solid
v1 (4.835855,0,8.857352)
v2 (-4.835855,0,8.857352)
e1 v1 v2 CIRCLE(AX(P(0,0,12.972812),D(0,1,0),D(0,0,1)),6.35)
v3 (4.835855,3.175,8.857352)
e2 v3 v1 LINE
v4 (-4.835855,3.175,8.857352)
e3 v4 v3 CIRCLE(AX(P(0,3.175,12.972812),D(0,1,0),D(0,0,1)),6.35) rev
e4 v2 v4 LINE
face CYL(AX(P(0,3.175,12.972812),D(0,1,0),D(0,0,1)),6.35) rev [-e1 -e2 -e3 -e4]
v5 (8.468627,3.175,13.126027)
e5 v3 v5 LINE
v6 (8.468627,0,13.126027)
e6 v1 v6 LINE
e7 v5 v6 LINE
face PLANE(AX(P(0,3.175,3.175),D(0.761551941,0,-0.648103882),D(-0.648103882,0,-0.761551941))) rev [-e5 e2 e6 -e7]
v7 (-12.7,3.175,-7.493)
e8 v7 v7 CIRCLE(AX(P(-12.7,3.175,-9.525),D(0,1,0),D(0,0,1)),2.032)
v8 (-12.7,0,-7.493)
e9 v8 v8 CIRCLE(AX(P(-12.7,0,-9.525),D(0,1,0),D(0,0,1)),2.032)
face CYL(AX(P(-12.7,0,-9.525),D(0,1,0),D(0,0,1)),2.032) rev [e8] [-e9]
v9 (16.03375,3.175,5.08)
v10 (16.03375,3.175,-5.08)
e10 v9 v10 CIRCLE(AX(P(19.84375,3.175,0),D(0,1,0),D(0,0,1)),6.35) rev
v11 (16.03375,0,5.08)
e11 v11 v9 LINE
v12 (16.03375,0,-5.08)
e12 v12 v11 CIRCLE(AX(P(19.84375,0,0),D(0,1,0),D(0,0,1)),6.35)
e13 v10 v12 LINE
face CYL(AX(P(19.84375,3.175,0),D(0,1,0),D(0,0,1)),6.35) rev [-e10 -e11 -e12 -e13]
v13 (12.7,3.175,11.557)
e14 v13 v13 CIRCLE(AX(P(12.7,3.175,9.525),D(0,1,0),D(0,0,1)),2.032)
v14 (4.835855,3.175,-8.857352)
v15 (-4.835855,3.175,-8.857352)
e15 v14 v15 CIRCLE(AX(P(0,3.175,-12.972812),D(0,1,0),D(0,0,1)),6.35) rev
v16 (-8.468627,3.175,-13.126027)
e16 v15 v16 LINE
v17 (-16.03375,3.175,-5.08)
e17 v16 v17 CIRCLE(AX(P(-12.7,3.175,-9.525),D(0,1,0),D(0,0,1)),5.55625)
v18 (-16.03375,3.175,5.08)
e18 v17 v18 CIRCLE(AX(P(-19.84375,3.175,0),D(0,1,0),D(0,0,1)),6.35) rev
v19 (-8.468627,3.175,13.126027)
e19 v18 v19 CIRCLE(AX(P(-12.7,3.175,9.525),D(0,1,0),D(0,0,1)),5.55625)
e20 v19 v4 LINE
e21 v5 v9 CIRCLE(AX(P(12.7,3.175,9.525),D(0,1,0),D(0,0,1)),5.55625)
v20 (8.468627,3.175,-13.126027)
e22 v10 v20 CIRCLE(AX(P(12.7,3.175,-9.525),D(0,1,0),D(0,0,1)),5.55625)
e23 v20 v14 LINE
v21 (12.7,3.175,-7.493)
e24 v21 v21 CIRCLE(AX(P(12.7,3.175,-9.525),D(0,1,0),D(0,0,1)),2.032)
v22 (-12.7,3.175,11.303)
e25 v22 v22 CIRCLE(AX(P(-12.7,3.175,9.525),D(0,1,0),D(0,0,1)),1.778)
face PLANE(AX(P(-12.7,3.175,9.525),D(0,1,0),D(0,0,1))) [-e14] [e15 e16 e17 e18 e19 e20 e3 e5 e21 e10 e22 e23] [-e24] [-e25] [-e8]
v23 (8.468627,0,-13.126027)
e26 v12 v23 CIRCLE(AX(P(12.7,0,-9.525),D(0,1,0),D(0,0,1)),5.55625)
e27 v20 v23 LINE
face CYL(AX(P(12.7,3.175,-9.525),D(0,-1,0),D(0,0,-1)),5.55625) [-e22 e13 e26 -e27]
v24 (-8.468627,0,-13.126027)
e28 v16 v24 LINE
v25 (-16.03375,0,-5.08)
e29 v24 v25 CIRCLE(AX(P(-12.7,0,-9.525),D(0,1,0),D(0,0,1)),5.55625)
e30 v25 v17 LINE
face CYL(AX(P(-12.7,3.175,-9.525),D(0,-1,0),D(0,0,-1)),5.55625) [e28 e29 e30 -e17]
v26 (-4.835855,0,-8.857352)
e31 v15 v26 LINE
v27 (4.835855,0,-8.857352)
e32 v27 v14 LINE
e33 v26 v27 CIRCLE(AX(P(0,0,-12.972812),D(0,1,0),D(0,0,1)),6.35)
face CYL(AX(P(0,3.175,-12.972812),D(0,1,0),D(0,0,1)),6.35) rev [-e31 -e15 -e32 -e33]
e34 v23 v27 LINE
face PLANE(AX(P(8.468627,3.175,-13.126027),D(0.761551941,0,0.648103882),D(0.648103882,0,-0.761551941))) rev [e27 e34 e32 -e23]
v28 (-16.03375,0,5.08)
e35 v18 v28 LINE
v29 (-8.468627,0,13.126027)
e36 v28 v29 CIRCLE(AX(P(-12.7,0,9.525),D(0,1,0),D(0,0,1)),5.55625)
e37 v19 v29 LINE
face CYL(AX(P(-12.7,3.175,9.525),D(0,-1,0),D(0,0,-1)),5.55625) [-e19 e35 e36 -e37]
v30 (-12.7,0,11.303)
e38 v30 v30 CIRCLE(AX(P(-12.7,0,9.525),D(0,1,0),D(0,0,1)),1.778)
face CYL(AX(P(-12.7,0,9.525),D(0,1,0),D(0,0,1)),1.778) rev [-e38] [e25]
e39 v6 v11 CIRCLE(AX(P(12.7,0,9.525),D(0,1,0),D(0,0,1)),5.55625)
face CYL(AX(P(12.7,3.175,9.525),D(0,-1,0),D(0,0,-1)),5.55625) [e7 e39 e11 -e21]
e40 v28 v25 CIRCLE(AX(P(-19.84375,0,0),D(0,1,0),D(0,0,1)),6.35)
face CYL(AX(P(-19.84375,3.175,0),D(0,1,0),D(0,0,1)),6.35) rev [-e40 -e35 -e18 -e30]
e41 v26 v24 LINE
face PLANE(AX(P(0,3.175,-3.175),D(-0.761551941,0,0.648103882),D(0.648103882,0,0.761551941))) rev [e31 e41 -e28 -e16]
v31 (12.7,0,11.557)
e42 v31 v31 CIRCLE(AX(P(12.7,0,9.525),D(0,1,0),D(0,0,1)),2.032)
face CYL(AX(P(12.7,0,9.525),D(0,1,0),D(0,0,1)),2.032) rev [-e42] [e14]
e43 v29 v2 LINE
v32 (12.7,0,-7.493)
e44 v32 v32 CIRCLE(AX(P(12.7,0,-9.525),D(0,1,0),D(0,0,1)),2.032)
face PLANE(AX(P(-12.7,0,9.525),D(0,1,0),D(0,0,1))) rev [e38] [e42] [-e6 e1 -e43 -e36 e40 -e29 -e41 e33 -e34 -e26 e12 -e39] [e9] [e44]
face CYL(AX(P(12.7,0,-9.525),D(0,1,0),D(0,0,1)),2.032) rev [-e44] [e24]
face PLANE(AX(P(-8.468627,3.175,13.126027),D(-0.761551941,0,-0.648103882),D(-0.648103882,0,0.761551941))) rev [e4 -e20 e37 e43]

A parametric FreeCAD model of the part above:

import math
import FreeCAD as App
import Part
import Sketcher

V = App.Vector
Q = App.Units.Quantity


def edges_at(feature, points):
    """Names of the edges that pass closest to the given points."""
    edges = feature.Shape.Edges
    near = lambda p: min(range(len(edges)), key=lambda i: edges[i].distToShape(Part.Vertex(*p))[0])
    return sorted({f"Edge{near(p) + 1}" for p in points})

doc = App.newDocument("Part")
params = doc.addObject("Spreadsheet::Sheet", "Params")
for row, (alias, value) in enumerate([
    ("sketch1_radius", "0.21875 in"),
    ("pad1_length", "0.125 in"),
    ("fillet_radius", "0.25 in"),
    ("sketch2_diameter", "0.16 in"),
    ("sketch2_diameter2", "0.14 in"),
], start=1):
    params.set(f"A{row}", alias)
    params.set(f"B{row}", "=" + value)
    params.setAlias(f"B{row}", alias)

body = doc.addObject("PartDesign::Body", "Body")

sketch1 = doc.addObject("Sketcher::SketchObject", "Sketch")
body.addObject(sketch1)
sketch1.AttachmentSupport = (doc.XZ_Plane, [""])
sketch1.MapMode = "FlatFace"
sketch1.addGeometry([
    Part.LineSegment(V(-8, 13, 0), V(0, 3, 0)),
    Part.LineSegment(V(0, 3, 0), V(8, 13, 0)),
    Part.ArcOfCircle(Part.Circle(V(13, 10, 0), V(0, 0, 1), 6), math.radians(-69), math.radians(140)),
    Part.LineSegment(V(15, 4, 0), V(3, 0, 0)),
    Part.LineSegment(V(3, 0, 0), V(15, -4, 0)),
    Part.ArcOfCircle(Part.Circle(V(13, -10, 0), V(0, 0, 1), 6), math.radians(-140), math.radians(69)),
    Part.LineSegment(V(8, -13, 0), V(0, -3, 0)),
    Part.LineSegment(V(0, -3, 0), V(-8, -13, 0)),
    Part.ArcOfCircle(Part.Circle(V(-13, -10, 0), V(0, 0, 1), 6), math.radians(111), math.radians(320)),
    Part.LineSegment(V(-15, -4, 0), V(-3, 0, 0)),
    Part.LineSegment(V(-3, 0, 0), V(-15, 4, 0)),
    Part.ArcOfCircle(Part.Circle(V(-13, 10, 0), V(0, 0, 1), 6), math.radians(40), math.radians(249)),
], False)
sketch1.addConstraint([
    Sketcher.Constraint("Coincident", 0, 2, 1, 1),
    Sketcher.Constraint("Tangent", 1, 2, 2, 2),
    Sketcher.Constraint("Tangent", 2, 1, 3, 1),
    Sketcher.Constraint("Coincident", 3, 2, 4, 1),
    Sketcher.Constraint("Tangent", 4, 2, 5, 2),
    Sketcher.Constraint("Tangent", 5, 1, 6, 1),
    Sketcher.Constraint("Coincident", 6, 2, 7, 1),
    Sketcher.Constraint("Tangent", 7, 2, 8, 2),
    Sketcher.Constraint("Tangent", 8, 1, 9, 1),
    Sketcher.Constraint("Coincident", 9, 2, 10, 1),
    Sketcher.Constraint("Tangent", 10, 2, 11, 2),
    Sketcher.Constraint("Tangent", 11, 1, 0, 1),
    Sketcher.Constraint("Equal", 2, 5),
    Sketcher.Constraint("Equal", 5, 8),
    Sketcher.Constraint("Equal", 8, 11),
    Sketcher.Constraint("Symmetric", 2, 3, 8, 3, -1, 1),
    Sketcher.Constraint("Symmetric", 5, 3, 11, 3, -1, 1),
    Sketcher.Constraint("Symmetric", 0, 2, 6, 2, -1, 1),
    Sketcher.Constraint("Symmetric", 3, 2, 9, 2, -1, 1),
    Sketcher.Constraint("Symmetric", 5, 3, 8, 3, -2),
    Sketcher.Constraint("PointOnObject", 0, 2, -2),
    Sketcher.Constraint("PointOnObject", 3, 2, -1),
    Sketcher.Constraint("Radius", 2, Q("0.21875 in")),
    Sketcher.Constraint("DistanceX", 8, 3, 5, 3, Q("1 in")),
    Sketcher.Constraint("DistanceY", 5, 3, 0, 2, Q("0.5 in")),
    Sketcher.Constraint("DistanceY", 5, 3, 2, 3, Q("0.75 in")),
    Sketcher.Constraint("DistanceX", 9, 2, 3, 2, Q("0.25 in")),
])
sketch1.setExpression("Constraints[22]", "Params.sketch1_radius")
pad1 = doc.addObject("PartDesign::Pad", "Pad")
body.addObject(pad1)
pad1.Profile = sketch1
pad1.setExpression("Length", "Params.pad1_length")
pad1.Reversed = True
doc.recompute()

fillet = doc.addObject("PartDesign::Fillet", "Fillet")
body.addObject(fillet)
fillet.Base = (pad1, edges_at(pad1, [
    (0, 1.587, -3.175),
    (-3.175, 1.587, 0),
    (3.175, 1.587, 0),
    (0, 1.587, 3.175),
]))
fillet.setExpression("Radius", "Params.fillet_radius")

sketch2 = doc.addObject("Sketcher::SketchObject", "Sketch001")
body.addObject(sketch2)
sketch2.AttachmentSupport = (doc.XZ_Plane, [""])
sketch2.MapMode = "FlatFace"
sketch2.AttachmentOffset = App.Placement(V(0, 0, -0.125 * 25.4), App.Rotation())
sketch2.addGeometry([
    Part.Circle(V(-12.7, -9.5, 0), V(0, 0, 1), 2),
    Part.Circle(V(12.7, -9.5, 0), V(0, 0, 1), 2),
    Part.Circle(V(12.7, 9.5, 0), V(0, 0, 1), 2),
    Part.Circle(V(-12.7, 9.5, 0), V(0, 0, 1), 1.8),
], False)
sketch2.addConstraint([
    Sketcher.Constraint("Equal", 0, 1),
    Sketcher.Constraint("Equal", 1, 2),
    Sketcher.Constraint("Symmetric", 0, 3, 2, 3, -1, 1),
    Sketcher.Constraint("Symmetric", 1, 3, 3, 3, -1, 1),
    Sketcher.Constraint("Symmetric", 0, 3, 1, 3, -2),
    Sketcher.Constraint("Diameter", 0, Q("0.16 in")),
    Sketcher.Constraint("Diameter", 3, Q("0.14 in")),
    Sketcher.Constraint("DistanceX", 0, 3, 1, 3, Q("1 in")),
    Sketcher.Constraint("DistanceY", 1, 3, 2, 3, Q("0.75 in")),
])
sketch2.setExpression("Constraints[5]", "Params.sketch2_diameter")
sketch2.setExpression("Constraints[6]", "Params.sketch2_diameter2")
pocket1 = doc.addObject("PartDesign::Pocket", "Pocket")
body.addObject(pocket1)
pocket1.Profile = sketch2
pocket1.Type = "ThroughAll"
pocket1.Reversed = True

doc.recompute()
